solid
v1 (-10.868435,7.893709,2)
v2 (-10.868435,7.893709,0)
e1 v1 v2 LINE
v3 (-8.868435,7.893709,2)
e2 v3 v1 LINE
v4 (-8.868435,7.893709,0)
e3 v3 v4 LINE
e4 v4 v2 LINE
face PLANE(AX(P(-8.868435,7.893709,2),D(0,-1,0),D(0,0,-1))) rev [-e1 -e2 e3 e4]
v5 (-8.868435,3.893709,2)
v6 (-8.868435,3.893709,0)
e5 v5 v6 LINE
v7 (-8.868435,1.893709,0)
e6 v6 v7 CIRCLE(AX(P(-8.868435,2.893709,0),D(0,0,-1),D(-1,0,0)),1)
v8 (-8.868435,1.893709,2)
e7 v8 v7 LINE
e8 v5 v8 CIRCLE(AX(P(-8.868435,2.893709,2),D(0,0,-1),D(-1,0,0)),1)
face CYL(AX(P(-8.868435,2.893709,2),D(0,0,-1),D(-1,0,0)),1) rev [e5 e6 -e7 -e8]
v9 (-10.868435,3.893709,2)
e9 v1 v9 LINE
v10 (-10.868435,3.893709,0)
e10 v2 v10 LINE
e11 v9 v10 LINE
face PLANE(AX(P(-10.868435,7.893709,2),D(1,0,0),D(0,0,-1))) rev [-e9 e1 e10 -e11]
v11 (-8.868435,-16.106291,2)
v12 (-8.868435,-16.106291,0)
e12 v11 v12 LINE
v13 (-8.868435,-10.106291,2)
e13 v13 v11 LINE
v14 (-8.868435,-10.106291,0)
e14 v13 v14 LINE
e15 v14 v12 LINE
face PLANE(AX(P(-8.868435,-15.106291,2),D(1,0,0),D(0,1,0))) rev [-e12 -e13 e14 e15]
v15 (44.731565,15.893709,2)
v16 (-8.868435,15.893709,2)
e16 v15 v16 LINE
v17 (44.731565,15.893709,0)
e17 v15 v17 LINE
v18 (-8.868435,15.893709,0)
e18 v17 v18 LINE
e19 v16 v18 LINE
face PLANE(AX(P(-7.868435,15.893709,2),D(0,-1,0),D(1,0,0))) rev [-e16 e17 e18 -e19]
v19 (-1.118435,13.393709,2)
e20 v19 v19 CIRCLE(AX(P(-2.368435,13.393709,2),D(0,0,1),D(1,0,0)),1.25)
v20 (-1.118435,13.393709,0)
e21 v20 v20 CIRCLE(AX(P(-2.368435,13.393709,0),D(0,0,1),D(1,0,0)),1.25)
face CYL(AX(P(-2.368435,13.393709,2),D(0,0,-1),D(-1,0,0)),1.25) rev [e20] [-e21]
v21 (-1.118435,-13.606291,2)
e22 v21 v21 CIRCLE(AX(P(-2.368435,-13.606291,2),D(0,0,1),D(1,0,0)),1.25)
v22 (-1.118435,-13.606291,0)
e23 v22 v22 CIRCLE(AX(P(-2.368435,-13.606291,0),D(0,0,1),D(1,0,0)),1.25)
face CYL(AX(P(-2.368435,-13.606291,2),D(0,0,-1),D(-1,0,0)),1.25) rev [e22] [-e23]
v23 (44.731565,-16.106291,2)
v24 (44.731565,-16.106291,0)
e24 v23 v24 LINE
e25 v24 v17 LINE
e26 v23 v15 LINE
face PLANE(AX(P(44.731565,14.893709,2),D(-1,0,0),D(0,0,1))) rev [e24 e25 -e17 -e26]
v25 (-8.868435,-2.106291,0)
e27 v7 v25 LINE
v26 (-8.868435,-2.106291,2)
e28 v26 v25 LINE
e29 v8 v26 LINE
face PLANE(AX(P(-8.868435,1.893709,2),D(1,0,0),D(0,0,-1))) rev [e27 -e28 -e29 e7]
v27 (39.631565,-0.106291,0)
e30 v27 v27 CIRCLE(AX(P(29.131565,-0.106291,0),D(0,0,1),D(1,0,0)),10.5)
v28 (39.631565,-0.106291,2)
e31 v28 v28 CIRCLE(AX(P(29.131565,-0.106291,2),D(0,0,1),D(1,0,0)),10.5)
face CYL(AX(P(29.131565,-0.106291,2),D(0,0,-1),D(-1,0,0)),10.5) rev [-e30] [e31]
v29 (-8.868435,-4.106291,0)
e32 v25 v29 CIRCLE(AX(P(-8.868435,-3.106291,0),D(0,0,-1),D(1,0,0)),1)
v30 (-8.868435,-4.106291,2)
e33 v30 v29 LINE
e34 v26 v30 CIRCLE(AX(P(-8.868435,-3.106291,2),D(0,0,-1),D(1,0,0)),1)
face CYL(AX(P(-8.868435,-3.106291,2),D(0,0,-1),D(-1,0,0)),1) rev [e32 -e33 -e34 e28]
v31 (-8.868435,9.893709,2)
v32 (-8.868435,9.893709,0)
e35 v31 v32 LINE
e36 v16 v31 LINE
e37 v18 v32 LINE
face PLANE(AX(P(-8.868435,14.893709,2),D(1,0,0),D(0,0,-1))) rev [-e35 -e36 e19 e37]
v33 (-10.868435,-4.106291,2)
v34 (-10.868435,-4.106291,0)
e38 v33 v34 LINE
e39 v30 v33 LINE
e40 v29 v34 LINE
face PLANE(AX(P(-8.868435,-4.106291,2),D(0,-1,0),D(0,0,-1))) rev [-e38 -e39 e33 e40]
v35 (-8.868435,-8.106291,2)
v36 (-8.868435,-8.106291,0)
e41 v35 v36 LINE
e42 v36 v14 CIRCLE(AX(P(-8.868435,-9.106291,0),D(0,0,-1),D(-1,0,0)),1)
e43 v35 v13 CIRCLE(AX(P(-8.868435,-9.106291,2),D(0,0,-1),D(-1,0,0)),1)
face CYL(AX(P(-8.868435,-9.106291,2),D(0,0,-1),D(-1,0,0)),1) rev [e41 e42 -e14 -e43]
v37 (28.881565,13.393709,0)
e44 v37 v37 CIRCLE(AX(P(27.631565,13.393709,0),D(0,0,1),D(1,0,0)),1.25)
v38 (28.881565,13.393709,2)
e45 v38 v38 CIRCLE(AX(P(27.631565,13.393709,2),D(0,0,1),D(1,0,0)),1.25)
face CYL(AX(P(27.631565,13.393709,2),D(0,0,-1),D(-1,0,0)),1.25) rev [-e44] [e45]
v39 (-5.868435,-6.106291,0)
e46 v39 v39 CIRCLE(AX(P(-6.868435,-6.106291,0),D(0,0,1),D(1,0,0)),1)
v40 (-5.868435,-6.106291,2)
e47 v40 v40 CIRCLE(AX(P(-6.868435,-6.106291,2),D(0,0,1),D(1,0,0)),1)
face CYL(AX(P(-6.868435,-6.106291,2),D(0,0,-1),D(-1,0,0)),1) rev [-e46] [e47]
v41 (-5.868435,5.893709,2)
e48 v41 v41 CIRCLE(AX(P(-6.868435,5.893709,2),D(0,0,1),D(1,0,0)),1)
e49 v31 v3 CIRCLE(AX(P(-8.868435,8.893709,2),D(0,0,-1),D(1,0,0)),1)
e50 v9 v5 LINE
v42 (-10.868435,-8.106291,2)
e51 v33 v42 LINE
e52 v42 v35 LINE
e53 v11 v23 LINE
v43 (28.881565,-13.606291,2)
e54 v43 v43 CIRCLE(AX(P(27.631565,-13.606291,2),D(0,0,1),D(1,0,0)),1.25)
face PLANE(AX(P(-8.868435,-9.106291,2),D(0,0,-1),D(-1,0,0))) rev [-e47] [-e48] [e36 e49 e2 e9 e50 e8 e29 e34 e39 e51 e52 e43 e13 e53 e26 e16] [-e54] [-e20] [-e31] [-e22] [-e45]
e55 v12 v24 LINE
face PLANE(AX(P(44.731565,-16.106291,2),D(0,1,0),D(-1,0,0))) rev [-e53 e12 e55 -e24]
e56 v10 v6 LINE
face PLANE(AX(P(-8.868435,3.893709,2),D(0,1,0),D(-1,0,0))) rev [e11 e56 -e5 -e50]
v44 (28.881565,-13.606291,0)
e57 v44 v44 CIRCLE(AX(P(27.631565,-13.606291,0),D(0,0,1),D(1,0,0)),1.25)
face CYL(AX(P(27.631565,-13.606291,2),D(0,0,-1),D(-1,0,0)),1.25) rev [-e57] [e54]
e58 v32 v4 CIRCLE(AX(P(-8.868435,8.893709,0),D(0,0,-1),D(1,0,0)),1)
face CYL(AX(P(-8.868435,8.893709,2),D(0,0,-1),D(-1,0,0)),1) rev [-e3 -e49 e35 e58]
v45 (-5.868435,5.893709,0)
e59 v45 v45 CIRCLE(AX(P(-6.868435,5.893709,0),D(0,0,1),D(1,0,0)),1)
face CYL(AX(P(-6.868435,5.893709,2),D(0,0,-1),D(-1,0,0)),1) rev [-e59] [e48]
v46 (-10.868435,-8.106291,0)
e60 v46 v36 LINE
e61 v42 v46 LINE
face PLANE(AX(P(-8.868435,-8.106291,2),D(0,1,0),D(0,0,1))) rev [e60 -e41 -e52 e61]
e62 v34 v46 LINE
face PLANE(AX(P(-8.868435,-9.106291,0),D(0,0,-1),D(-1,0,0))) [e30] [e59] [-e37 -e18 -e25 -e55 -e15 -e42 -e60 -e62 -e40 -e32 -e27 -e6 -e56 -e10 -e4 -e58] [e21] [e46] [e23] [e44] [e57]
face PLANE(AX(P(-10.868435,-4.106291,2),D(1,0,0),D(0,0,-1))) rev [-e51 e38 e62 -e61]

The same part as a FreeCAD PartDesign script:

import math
import FreeCAD as App
import Part
import Sketcher
Q = App.Units.Quantity

doc = App.newDocument("Part")
body = doc.addObject("PartDesign::Body", "Body")

# Sketch on XY plane
sketch1 = doc.addObject("Sketcher::SketchObject", "Sketch")
body.addObject(sketch1)
sketch1.AttachmentSupport = (doc.XY_Plane, [""])
sketch1.MapMode = "FlatFace"
sketch1.addGeometry(Part.LineSegment(App.Vector(44.7, 15.9, 0), App.Vector(-8.9, 15.9, 0)), False)
sketch1.addGeometry(Part.LineSegment(App.Vector(-8.9, 15.9, 0), App.Vector(-8.9, 9.9, 0)), False)
sketch1.addGeometry(Part.ArcOfCircle(Part.Circle(App.Vector(-8.9, 8.9, 0), App.Vector(0, 0, 1), 1), math.radians(-90), math.radians(90)), False)
sketch1.addGeometry(Part.LineSegment(App.Vector(-8.9, 7.9, 0), App.Vector(-10.9, 7.9, 0)), False)
sketch1.addGeometry(Part.LineSegment(App.Vector(-10.9, 7.9, 0), App.Vector(-10.9, 3.9, 0)), False)
sketch1.addGeometry(Part.LineSegment(App.Vector(-10.9, 3.9, 0), App.Vector(-8.9, 3.9, 0)), False)
sketch1.addGeometry(Part.ArcOfCircle(Part.Circle(App.Vector(-8.9, 2.9, 0), App.Vector(0, 0, 1), 1), math.radians(-90), math.radians(90)), False)
sketch1.addGeometry(Part.LineSegment(App.Vector(-8.9, 1.9, 0), App.Vector(-8.9, -2.1, 0)), False)
sketch1.addGeometry(Part.ArcOfCircle(Part.Circle(App.Vector(-8.9, -3.1, 0), App.Vector(0, 0, 1), 1), math.radians(-90), math.radians(90)), False)
sketch1.addGeometry(Part.LineSegment(App.Vector(-8.9, -4.1, 0), App.Vector(-10.9, -4.1, 0)), False)
sketch1.addGeometry(Part.LineSegment(App.Vector(-10.9, -4.1, 0), App.Vector(-10.9, -8.1, 0)), False)
sketch1.addGeometry(Part.LineSegment(App.Vector(-10.9, -8.1, 0), App.Vector(-8.9, -8.1, 0)), False)
sketch1.addGeometry(Part.ArcOfCircle(Part.Circle(App.Vector(-8.9, -9.1, 0), App.Vector(0, 0, 1), 1), math.radians(-90), math.radians(90)), False)
sketch1.addGeometry(Part.LineSegment(App.Vector(-8.9, -10.1, 0), App.Vector(-8.9, -16.1, 0)), False)
sketch1.addGeometry(Part.LineSegment(App.Vector(-8.9, -16.1, 0), App.Vector(44.7, -16.1, 0)), False)
sketch1.addGeometry(Part.LineSegment(App.Vector(44.7, -16.1, 0), App.Vector(44.7, 15.9, 0)), False)
sketch1.addGeometry(Part.Circle(App.Vector(27.6, -13.6, 0), App.Vector(0, 0, 1), 1.2), False)
sketch1.addGeometry(Part.Circle(App.Vector(-2.4, -13.6, 0), App.Vector(0, 0, 1), 1.2), False)
sketch1.addGeometry(Part.Circle(App.Vector(-6.9, -6.1, 0), App.Vector(0, 0, 1), 1), False)
sketch1.addGeometry(Part.Circle(App.Vector(29.1, -0.1, 0), App.Vector(0, 0, 1), 10.5), False)
sketch1.addGeometry(Part.Circle(App.Vector(27.6, 13.4, 0), App.Vector(0, 0, 1), 1.2), False)
sketch1.addGeometry(Part.Circle(App.Vector(-6.9, 5.9, 0), App.Vector(0, 0, 1), 1), False)
sketch1.addGeometry(Part.Circle(App.Vector(-2.4, 13.4, 0), App.Vector(0, 0, 1), 1.2), False)
sketch1.addConstraint(Sketcher.Constraint("Coincident", 0, 2, 1, 1))
sketch1.addConstraint(Sketcher.Constraint("Coincident", 1, 2, 2, 2))
sketch1.addConstraint(Sketcher.Constraint("Tangent", 2, 1, 3, 1))
sketch1.addConstraint(Sketcher.Constraint("Coincident", 3, 2, 4, 1))
sketch1.addConstraint(Sketcher.Constraint("Coincident", 4, 2, 5, 1))
sketch1.addConstraint(Sketcher.Constraint("Tangent", 5, 2, 6, 2))
sketch1.addConstraint(Sketcher.Constraint("Coincident", 6, 1, 7, 1))
sketch1.addConstraint(Sketcher.Constraint("Coincident", 7, 2, 8, 2))
sketch1.addConstraint(Sketcher.Constraint("Tangent", 8, 1, 9, 1))
sketch1.addConstraint(Sketcher.Constraint("Coincident", 9, 2, 10, 1))
sketch1.addConstraint(Sketcher.Constraint("Coincident", 10, 2, 11, 1))
sketch1.addConstraint(Sketcher.Constraint("Tangent", 11, 2, 12, 2))
sketch1.addConstraint(Sketcher.Constraint("Coincident", 12, 1, 13, 1))
sketch1.addConstraint(Sketcher.Constraint("Coincident", 13, 2, 14, 1))
sketch1.addConstraint(Sketcher.Constraint("Coincident", 14, 2, 15, 1))
sketch1.addConstraint(Sketcher.Constraint("Coincident", 15, 2, 0, 1))
sketch1.addConstraint(Sketcher.Constraint("Horizontal", 0))
sketch1.addConstraint(Sketcher.Constraint("Vertical", 1))
sketch1.addConstraint(Sketcher.Constraint("Horizontal", 3))
sketch1.addConstraint(Sketcher.Constraint("Vertical", 4))
sketch1.addConstraint(Sketcher.Constraint("Horizontal", 5))
sketch1.addConstraint(Sketcher.Constraint("Vertical", 7))
sketch1.addConstraint(Sketcher.Constraint("Horizontal", 9))
sketch1.addConstraint(Sketcher.Constraint("Vertical", 10))
sketch1.addConstraint(Sketcher.Constraint("Horizontal", 11))
sketch1.addConstraint(Sketcher.Constraint("Vertical", 13))
sketch1.addConstraint(Sketcher.Constraint("Horizontal", 14))
sketch1.addConstraint(Sketcher.Constraint("Vertical", 15))
sketch1.addConstraint(Sketcher.Constraint("Equal", 2, 6))
sketch1.addConstraint(Sketcher.Constraint("Equal", 6, 8))
sketch1.addConstraint(Sketcher.Constraint("Equal", 8, 12))
sketch1.addConstraint(Sketcher.Constraint("Equal", 16, 17))
sketch1.addConstraint(Sketcher.Constraint("Equal", 12, 18))
sketch1.addConstraint(Sketcher.Constraint("Equal", 17, 20))
sketch1.addConstraint(Sketcher.Constraint("Equal", 18, 21))
sketch1.addConstraint(Sketcher.Constraint("Equal", 20, 22))
sketch1.addConstraint(Sketcher.Constraint("Horizontal", 16, 3, 17, 3))
sketch1.addConstraint(Sketcher.Constraint("Horizontal", 20, 3, 22, 3))
sketch1.addConstraint(Sketcher.Constraint("Vertical", 2, 3, 6, 3))
sketch1.addConstraint(Sketcher.Constraint("Vertical", 6, 3, 8, 3))
sketch1.addConstraint(Sketcher.Constraint("Vertical", 8, 3, 12, 3))
sketch1.addConstraint(Sketcher.Constraint("Vertical", 16, 3, 20, 3))
sketch1.addConstraint(Sketcher.Constraint("Vertical", 18, 3, 21, 3))
sketch1.addConstraint(Sketcher.Constraint("Vertical", 17, 3, 22, 3))
sketch1.addConstraint(Sketcher.Constraint("Vertical", 12, 3, 0, 2))
sketch1.addConstraint(Sketcher.Constraint("Vertical", 5, 2, 6, 1))
sketch1.addConstraint(Sketcher.Constraint("Vertical", 4, 2, 9, 2))
sketch1.addConstraint(Sketcher.Constraint("Vertical", 11, 2, 12, 1))
sketch1.addConstraint(Sketcher.Constraint("Equal", 4, 7))
sketch1.addConstraint(Sketcher.Constraint("Equal", 7, 10))
sketch1.addConstraint(Sketcher.Constraint("Equal", 1, 13))
sketch1.addConstraint(Sketcher.Constraint("Diameter", 18, Q("2 mm")))
sketch1.addConstraint(Sketcher.Constraint("Diameter", 19, Q("21 mm")))
sketch1.addConstraint(Sketcher.Constraint("Diameter", 16, Q("2.5 mm")))
sketch1.addConstraint(Sketcher.Constraint("DistanceX", 3, 2, 3, 1, Q("2 mm")))
sketch1.addConstraint(Sketcher.Constraint("DistanceY", 1, 2, 1, 1, Q("6 mm")))
sketch1.addConstraint(Sketcher.Constraint("DistanceY", 4, 2, 4, 1, Q("4 mm")))
sketch1.addConstraint(Sketcher.Constraint("DistanceX", 0, 2, 0, 1, Q("53.6 mm")))
sketch1.addConstraint(Sketcher.Constraint("DistanceX", 17, 3, 16, 3, Q("30 mm")))
sketch1.addConstraint(Sketcher.Constraint("DistanceX", 8, 3, 18, 3, Q("2 mm")))
sketch1.addConstraint(Sketcher.Constraint("DistanceY", 18, 3, 8, 3, Q("3 mm")))
sketch1.addConstraint(Sketcher.Constraint("DistanceX", 18, 3, 19, 3, Q("36 mm")))
sketch1.addConstraint(Sketcher.Constraint("DistanceY", 18, 3, 19, 3, Q("6 mm")))
sketch1.addConstraint(Sketcher.Constraint("DistanceY", 16, 3, 20, 3, Q("27 mm")))
sketch1.addConstraint(Sketcher.Constraint("DistanceY", 21, 3, 2, 3, Q("3 mm")))
sketch1.addConstraint(Sketcher.Constraint("DistanceX", 12, 3, 16, 3, Q("36.5 mm")))
sketch1.addConstraint(Sketcher.Constraint("DistanceY", 16, 3, 12, 3, Q("4.5 mm")))
sketch1.addConstraint(Sketcher.Constraint("DistanceY", -1, 1, 2, 3, Q("8.893709 mm")))
sketch1.addConstraint(Sketcher.Constraint("DistanceX", 2, 3, -1, 1, Q("8.868435 mm")))
pad1 = doc.addObject("PartDesign::Pad", "Pad")
body.addObject(pad1)
pad1.Profile = sketch1
pad1.Length = 2

doc.recompute()
